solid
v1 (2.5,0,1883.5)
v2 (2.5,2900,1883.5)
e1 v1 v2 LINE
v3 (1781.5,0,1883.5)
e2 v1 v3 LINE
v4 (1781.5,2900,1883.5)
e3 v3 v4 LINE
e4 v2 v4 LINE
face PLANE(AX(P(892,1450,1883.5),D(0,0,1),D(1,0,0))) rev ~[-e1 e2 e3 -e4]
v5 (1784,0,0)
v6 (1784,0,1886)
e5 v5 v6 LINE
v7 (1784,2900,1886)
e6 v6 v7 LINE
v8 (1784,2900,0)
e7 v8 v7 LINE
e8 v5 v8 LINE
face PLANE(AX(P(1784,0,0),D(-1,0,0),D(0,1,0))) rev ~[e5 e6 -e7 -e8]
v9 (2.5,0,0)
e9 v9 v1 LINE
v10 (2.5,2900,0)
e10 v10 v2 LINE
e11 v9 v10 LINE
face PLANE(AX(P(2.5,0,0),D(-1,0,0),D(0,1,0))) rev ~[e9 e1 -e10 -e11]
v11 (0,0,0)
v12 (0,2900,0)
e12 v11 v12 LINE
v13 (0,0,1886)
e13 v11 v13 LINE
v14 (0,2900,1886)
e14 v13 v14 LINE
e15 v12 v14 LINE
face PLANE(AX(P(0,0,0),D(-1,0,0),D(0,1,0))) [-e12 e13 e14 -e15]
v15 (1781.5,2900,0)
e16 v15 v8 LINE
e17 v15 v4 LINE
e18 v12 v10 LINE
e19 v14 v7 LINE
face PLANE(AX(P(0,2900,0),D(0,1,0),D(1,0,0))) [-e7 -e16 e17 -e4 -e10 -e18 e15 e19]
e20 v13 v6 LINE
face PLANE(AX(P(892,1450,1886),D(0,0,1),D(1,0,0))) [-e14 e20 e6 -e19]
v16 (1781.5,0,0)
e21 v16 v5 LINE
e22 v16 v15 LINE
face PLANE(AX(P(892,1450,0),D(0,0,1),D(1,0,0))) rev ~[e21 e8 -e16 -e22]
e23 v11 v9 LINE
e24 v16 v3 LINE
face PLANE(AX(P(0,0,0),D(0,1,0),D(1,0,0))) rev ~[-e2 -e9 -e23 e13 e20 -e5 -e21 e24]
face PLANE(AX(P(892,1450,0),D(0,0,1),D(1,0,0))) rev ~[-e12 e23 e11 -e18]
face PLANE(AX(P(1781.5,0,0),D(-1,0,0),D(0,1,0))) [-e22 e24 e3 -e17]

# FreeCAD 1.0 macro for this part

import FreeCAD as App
import Part
import Sketcher

V = App.Vector
Q = App.Units.Quantity


def faces_at(feature, points):
    """Names of the faces that lie closest to the given points."""
    faces = feature.Shape.Faces
    near = lambda p: min(range(len(faces)), key=lambda i: faces[i].distToShape(Part.Vertex(*p))[0])
    return sorted({f"Face{near(p) + 1}" for p in points})

doc = App.newDocument("Part")
body = doc.addObject("PartDesign::Body", "Body")

sketch1 = body.newObject("Sketcher::SketchObject", "Sketch")
sketch1.AttachmentSupport = (doc.getObject("XY_Plane"), [""])
sketch1.MapMode = "FlatFace"
sketch1.addGeometry(Part.LineSegment(V(0, 2900, 0), V(0, 0, 0)), False)
sketch1.addGeometry(Part.LineSegment(V(0, 0, 0), V(1784, 0, 0)), False)
sketch1.addGeometry(Part.LineSegment(V(1784, 0, 0), V(1784, 2900, 0)), False)
sketch1.addGeometry(Part.LineSegment(V(1784, 2900, 0), V(0, 2900, 0)), False)
sketch1.addConstraint(Sketcher.Constraint("Coincident", 0, 2, 1, 1))
sketch1.addConstraint(Sketcher.Constraint("Coincident", 1, 2, 2, 1))
sketch1.addConstraint(Sketcher.Constraint("Coincident", 2, 2, 3, 1))
sketch1.addConstraint(Sketcher.Constraint("Coincident", 3, 2, 0, 1))
sketch1.addConstraint(Sketcher.Constraint("Vertical", 0))
sketch1.addConstraint(Sketcher.Constraint("Horizontal", 1))
sketch1.addConstraint(Sketcher.Constraint("Vertical", 2))
sketch1.addConstraint(Sketcher.Constraint("Horizontal", 3))
sketch1.addConstraint(Sketcher.Constraint("Coincident", 0, 2, -1, 1))
sketch1.addConstraint(Sketcher.Constraint("DistanceX", 1, 1, 1, 2, Q("1784 mm")))
sketch1.addConstraint(Sketcher.Constraint("DistanceY", 0, 2, 0, 1, Q("2900 mm")))
pad1 = body.newObject("PartDesign::Pad", "Pad")
pad1.Profile = sketch1
pad1.Length = 1886
doc.recompute()

thickness = body.newObject("PartDesign::Thickness", "Thickness")
thickness.Base = (pad1, faces_at(pad1, [(892, 0, 943), (892, 2900, 943), (892, 1450, 0)]))
thickness.Value = 2.5
thickness.Reversed = True
thickness.Join = "Arc"

doc.recompute()
